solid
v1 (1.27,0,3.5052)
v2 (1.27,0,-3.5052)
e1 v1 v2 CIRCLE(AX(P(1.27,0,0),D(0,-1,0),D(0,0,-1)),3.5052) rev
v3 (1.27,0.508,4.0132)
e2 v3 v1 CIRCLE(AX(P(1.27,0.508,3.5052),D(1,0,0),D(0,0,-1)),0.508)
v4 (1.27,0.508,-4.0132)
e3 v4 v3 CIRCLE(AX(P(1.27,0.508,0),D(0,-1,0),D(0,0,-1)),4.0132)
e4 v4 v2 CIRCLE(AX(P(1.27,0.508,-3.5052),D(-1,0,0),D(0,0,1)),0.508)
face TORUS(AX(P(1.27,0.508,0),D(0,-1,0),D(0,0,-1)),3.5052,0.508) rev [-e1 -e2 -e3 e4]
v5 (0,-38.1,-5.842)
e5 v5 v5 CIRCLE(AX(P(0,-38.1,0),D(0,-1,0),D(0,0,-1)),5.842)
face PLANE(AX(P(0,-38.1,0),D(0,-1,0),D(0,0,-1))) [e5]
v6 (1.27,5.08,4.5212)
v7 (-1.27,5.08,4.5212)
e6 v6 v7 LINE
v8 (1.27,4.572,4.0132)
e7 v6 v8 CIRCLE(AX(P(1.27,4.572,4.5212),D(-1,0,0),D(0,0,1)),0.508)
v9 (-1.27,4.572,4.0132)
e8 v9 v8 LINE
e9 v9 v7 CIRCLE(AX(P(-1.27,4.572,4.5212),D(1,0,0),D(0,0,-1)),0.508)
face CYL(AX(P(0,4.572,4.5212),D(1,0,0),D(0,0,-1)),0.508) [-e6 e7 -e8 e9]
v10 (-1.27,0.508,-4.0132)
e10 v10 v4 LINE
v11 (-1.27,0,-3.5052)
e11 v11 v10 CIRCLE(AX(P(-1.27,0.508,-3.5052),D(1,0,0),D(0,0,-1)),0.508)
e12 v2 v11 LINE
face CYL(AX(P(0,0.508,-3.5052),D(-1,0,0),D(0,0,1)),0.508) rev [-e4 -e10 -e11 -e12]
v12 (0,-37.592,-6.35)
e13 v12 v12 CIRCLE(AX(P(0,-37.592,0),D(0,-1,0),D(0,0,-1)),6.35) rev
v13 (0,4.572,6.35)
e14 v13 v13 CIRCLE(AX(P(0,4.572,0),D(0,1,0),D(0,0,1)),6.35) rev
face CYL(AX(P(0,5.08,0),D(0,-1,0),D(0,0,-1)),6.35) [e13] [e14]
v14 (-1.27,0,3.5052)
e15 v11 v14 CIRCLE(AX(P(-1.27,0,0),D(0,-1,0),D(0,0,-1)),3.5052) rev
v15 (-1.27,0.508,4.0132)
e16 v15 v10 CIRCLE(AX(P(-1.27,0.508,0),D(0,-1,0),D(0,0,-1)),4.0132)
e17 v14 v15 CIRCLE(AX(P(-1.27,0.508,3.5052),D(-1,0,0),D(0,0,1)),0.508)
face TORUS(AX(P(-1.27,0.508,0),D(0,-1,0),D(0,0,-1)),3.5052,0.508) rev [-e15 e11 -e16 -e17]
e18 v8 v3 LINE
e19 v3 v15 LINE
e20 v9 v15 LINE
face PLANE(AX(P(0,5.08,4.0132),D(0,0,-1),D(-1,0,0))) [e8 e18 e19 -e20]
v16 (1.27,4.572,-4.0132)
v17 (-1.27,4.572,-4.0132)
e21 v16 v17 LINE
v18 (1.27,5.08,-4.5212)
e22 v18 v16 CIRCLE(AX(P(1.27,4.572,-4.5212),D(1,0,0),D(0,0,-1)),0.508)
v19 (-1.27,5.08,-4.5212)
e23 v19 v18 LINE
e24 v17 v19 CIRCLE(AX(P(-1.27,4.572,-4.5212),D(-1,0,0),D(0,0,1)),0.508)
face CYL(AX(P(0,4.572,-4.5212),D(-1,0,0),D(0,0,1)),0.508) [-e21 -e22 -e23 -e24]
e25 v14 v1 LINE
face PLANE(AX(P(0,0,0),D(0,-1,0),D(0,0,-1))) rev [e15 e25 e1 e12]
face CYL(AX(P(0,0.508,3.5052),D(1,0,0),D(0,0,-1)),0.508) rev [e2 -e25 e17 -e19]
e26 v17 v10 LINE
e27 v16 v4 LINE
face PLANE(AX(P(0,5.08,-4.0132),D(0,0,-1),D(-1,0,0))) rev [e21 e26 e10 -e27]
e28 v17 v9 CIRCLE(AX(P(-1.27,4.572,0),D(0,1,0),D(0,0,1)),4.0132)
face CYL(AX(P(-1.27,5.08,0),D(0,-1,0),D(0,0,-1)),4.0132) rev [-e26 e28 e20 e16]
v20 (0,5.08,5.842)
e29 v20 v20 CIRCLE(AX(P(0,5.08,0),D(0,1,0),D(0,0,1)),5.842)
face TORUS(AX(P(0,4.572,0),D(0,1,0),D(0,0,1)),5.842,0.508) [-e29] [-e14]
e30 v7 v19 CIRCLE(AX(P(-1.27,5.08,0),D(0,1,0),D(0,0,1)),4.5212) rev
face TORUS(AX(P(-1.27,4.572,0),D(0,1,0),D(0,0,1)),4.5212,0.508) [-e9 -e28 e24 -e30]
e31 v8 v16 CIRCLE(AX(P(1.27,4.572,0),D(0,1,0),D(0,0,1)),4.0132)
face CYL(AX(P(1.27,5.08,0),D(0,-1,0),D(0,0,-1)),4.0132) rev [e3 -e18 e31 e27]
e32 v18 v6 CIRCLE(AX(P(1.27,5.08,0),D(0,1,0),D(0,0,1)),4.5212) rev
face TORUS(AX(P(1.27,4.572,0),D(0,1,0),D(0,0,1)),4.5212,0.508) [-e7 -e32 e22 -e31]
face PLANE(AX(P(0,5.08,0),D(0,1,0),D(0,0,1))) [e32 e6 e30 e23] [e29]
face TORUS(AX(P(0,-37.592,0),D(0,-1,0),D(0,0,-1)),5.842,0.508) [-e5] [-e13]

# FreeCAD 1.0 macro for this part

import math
import FreeCAD as App
import Part
import Sketcher
from FreeCAD import Vector
Q = App.Units.Quantity


def edges_at(feature, points):
    """Names of the edges that pass closest to the given points."""
    edges = feature.Shape.Edges
    near = lambda p: min(range(len(edges)), key=lambda i: edges[i].distToShape(Part.Vertex(*p))[0])
    return sorted({f"Edge{near(p) + 1}" for p in points})

doc = App.newDocument("Part")
body = doc.addObject("PartDesign::Body", "Body")

sketch1 = doc.addObject("Sketcher::SketchObject", "Sketch")
body.addObject(sketch1)
sketch1.AttachmentSupport = (doc.XZ_Plane, [""])
sketch1.MapMode = "FlatFace"
sketch1.addGeometry(Part.Circle(Vector(0, 0, 0), Vector(0, 0, 1), 6.3), False)
sketch1.addGeometry(Part.ArcOfCircle(Part.Circle(Vector(-1.3, 0, 0), Vector(0, 0, 1), 4), math.radians(90), math.radians(270)), False)
sketch1.addGeometry(Part.LineSegment(Vector(-1.3, -4, 0), Vector(1.3, -4, 0)), False)
sketch1.addGeometry(Part.ArcOfCircle(Part.Circle(Vector(1.3, 0, 0), Vector(0, 0, 1), 4), math.radians(-90), math.radians(90)), False)
sketch1.addGeometry(Part.LineSegment(Vector(1.3, 4, 0), Vector(-1.3, 4, 0)), False)
sketch1.addConstraint(Sketcher.Constraint("Tangent", 1, 2, 2, 1))
sketch1.addConstraint(Sketcher.Constraint("Tangent", 2, 2, 3, 1))
sketch1.addConstraint(Sketcher.Constraint("Tangent", 3, 2, 4, 1))
sketch1.addConstraint(Sketcher.Constraint("Tangent", 4, 2, 1, 1))
sketch1.addConstraint(Sketcher.Constraint("Horizontal", 2))
sketch1.addConstraint(Sketcher.Constraint("Horizontal", 4))
sketch1.addConstraint(Sketcher.Constraint("Coincident", 0, 3, -1, 1))
sketch1.addConstraint(Sketcher.Constraint("Symmetric", 1, 3, 3, 3, -1, 1))
sketch1.addConstraint(Sketcher.Constraint("Diameter", 0, Q("0.5 in")))
sketch1.addConstraint(Sketcher.Constraint("DistanceX", 2, 1, 2, 2, Q("0.1 in")))
sketch1.addConstraint(Sketcher.Constraint("Radius", 1, Q("0.158 in")))
pad1 = doc.addObject("PartDesign::Pad", "Pad")
body.addObject(pad1)
pad1.Profile = sketch1
pad1.Length = Q("0.2 in")
pad1.Reversed = True

sketch2 = doc.addObject("Sketcher::SketchObject", "Sketch001")
body.addObject(sketch2)
sketch2.AttachmentSupport = (doc.XZ_Plane, [""])
sketch2.MapMode = "FlatFace"
sketch2.AttachmentOffset = App.Placement(Vector(0, 0, 1.5 * 25.4), App.Rotation())
sketch2.addGeometry(Part.Circle(Vector(0, 0, 0), Vector(0, 0, 1), 6), False)
sketch2.addConstraint(Sketcher.Constraint("Coincident", 0, 3, -1, 1))
sketch2.addConstraint(Sketcher.Constraint("Diameter", 0, Q("0.5 in")))
pad2 = doc.addObject("PartDesign::Pad", "Pad001")
body.addObject(pad2)
pad2.Profile = sketch2
pad2.Length = Q("1.5 in")
pad2.Reversed = True
doc.recompute()

fillet = doc.addObject("PartDesign::Fillet", "Fillet")
body.addObject(fillet)
fillet.Base = (pad2, edges_at(pad2, [
    (0, 5.08, -4.013),
    (5.283, 5.08, 0),
    (0, -38.1, 6.35),
    (0, 5.08, 4.013),
    (0, 5.08, -6.35),
    (-5.283, 5.08, 0),
    (0, 0, 4.013),
    (5.283, 0, 0),
    (0, 0, -4.013),
    (-5.283, 0, 0),
]))
fillet.Radius = Q("0.02 in")

doc.recompute()
